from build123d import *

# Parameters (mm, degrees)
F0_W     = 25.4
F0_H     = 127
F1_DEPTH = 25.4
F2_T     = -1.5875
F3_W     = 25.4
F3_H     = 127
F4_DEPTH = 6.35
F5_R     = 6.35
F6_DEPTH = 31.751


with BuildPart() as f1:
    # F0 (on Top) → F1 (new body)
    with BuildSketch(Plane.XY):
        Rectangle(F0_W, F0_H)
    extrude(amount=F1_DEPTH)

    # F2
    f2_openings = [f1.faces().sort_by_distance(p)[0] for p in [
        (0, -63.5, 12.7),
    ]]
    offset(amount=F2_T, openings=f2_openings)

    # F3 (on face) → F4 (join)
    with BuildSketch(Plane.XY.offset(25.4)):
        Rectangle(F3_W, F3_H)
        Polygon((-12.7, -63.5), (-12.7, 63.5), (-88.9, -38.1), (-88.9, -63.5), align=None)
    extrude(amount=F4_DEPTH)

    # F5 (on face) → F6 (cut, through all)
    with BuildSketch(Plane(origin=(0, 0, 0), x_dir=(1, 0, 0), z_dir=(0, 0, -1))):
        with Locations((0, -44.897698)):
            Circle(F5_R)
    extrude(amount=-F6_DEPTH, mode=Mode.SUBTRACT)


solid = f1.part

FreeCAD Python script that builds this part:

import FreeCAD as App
import Part
import Sketcher
from FreeCAD import Vector
Q = App.Units.Quantity


def faces_at(feature, points):
    """Names of the faces that lie closest to the given points."""
    faces = feature.Shape.Faces
    near = lambda p: min(range(len(faces)), key=lambda i: faces[i].distToShape(Part.Vertex(*p))[0])
    return sorted({f"Face{near(p) + 1}" for p in points})

doc = App.newDocument("Part")
body = doc.addObject("PartDesign::Body", "Body")

sketch1 = body.newObject("Sketcher::SketchObject", "Sketch")
sketch1.AttachmentSupport = (doc.getObject("XY_Plane"), [""])
sketch1.MapMode = "FlatFace"
sketch1.addGeometry([
    Part.LineSegment(Vector(-12.7, 63.5, 0), Vector(-12.7, -63.5, 0)),
    Part.LineSegment(Vector(-12.7, -63.5, 0), Vector(12.7, -63.5, 0)),
    Part.LineSegment(Vector(12.7, -63.5, 0), Vector(12.7, 63.5, 0)),
    Part.LineSegment(Vector(12.7, 63.5, 0), Vector(-12.7, 63.5, 0)),
], False)
sketch1.addConstraint([
    Sketcher.Constraint("Coincident", 0, 2, 1, 1),
    Sketcher.Constraint("Coincident", 1, 2, 2, 1),
    Sketcher.Constraint("Coincident", 2, 2, 3, 1),
    Sketcher.Constraint("Coincident", 3, 2, 0, 1),
    Sketcher.Constraint("Vertical", 0),
    Sketcher.Constraint("Horizontal", 1),
    Sketcher.Constraint("Vertical", 2),
    Sketcher.Constraint("Horizontal", 3),
    Sketcher.Constraint("Symmetric", 0, 2, 2, 2, -1, 1),
    Sketcher.Constraint("DistanceX", 1, 1, 1, 2, Q("1 in")),
    Sketcher.Constraint("DistanceY", 0, 2, 0, 1, Q("5 in")),
])
pad1 = body.newObject("PartDesign::Pad", "Pad")
pad1.Profile = sketch1
pad1.Length = Q("1 in")
doc.recompute()

thickness = body.newObject("PartDesign::Thickness", "Thickness")
thickness.Base = (pad1, faces_at(pad1, [(0, -63.5, 12.7)]))
thickness.Value = Q("0.0625 in")
thickness.Reversed = True
thickness.Join = "Arc"

sketch2 = body.newObject("Sketcher::SketchObject", "Sketch001")
sketch2.AttachmentSupport = (doc.getObject("XY_Plane"), [""])
sketch2.MapMode = "FlatFace"
sketch2.AttachmentOffset = App.Placement(Vector(0, 0, 1 * 25.4), App.Rotation())
sketch2.addGeometry([
    Part.LineSegment(Vector(12.7, -63.5, 0), Vector(12.7, 63.5, 0)),
    Part.LineSegment(Vector(12.7, 63.5, 0), Vector(-12.7, 63.5, 0)),
    Part.LineSegment(Vector(-12.7, 63.5, 0), Vector(-88.9, -38.1, 0)),
    Part.LineSegment(Vector(-88.9, -38.1, 0), Vector(-88.9, -63.5, 0)),
    Part.LineSegment(Vector(-88.9, -63.5, 0), Vector(12.7, -63.5, 0)),
], False)
sketch2.addConstraint([
    Sketcher.Constraint("Coincident", 0, 2, 1, 1),
    Sketcher.Constraint("Coincident", 1, 2, 2, 1),
    Sketcher.Constraint("Coincident", 2, 2, 3, 1),
    Sketcher.Constraint("Coincident", 3, 2, 4, 1),
    Sketcher.Constraint("Coincident", 4, 2, 0, 1),
    Sketcher.Constraint("Vertical", 0),
    Sketcher.Constraint("Horizontal", 1),
    Sketcher.Constraint("Vertical", 3),
    Sketcher.Constraint("Horizontal", 4),
    Sketcher.Constraint("Symmetric", 1, 2, 4, 2, -1, 1),
    Sketcher.Constraint("Equal", 1, 3),
    Sketcher.Constraint("DistanceX", 1, 2, 1, 1, Q("1 in")),
    Sketcher.Constraint("DistanceX", 4, 1, 4, 2, Q("4 in")),
    Sketcher.Constraint("DistanceY", 0, 1, 0, 2, Q("5 in")),
])
pad2 = body.newObject("PartDesign::Pad", "Pad001")
pad2.Profile = sketch2
pad2.Length = Q("0.25 in")

sketch3 = body.newObject("Sketcher::SketchObject", "Sketch002")
sketch3.AttachmentSupport = (doc.getObject("XY_Plane"), [""])
sketch3.MapMode = "FlatFace"
sketch3.addGeometry(Part.Circle(Vector(0, 44.897698, 0), Vector(0, 0, 1), 6.35), False)
sketch3.addConstraint([
    Sketcher.Constraint("PointOnObject", 0, 3, -2),
    Sketcher.Constraint("Diameter", 0, Q("0.5 in")),
    Sketcher.Constraint("DistanceY", -1, 1, 0, 3, Q("44.897698 mm")),
])
pocket1 = body.newObject("PartDesign::Pocket", "Pocket")
pocket1.Profile = sketch3
pocket1.Type = "ThroughAll"
pocket1.Reversed = True

doc.recompute()
